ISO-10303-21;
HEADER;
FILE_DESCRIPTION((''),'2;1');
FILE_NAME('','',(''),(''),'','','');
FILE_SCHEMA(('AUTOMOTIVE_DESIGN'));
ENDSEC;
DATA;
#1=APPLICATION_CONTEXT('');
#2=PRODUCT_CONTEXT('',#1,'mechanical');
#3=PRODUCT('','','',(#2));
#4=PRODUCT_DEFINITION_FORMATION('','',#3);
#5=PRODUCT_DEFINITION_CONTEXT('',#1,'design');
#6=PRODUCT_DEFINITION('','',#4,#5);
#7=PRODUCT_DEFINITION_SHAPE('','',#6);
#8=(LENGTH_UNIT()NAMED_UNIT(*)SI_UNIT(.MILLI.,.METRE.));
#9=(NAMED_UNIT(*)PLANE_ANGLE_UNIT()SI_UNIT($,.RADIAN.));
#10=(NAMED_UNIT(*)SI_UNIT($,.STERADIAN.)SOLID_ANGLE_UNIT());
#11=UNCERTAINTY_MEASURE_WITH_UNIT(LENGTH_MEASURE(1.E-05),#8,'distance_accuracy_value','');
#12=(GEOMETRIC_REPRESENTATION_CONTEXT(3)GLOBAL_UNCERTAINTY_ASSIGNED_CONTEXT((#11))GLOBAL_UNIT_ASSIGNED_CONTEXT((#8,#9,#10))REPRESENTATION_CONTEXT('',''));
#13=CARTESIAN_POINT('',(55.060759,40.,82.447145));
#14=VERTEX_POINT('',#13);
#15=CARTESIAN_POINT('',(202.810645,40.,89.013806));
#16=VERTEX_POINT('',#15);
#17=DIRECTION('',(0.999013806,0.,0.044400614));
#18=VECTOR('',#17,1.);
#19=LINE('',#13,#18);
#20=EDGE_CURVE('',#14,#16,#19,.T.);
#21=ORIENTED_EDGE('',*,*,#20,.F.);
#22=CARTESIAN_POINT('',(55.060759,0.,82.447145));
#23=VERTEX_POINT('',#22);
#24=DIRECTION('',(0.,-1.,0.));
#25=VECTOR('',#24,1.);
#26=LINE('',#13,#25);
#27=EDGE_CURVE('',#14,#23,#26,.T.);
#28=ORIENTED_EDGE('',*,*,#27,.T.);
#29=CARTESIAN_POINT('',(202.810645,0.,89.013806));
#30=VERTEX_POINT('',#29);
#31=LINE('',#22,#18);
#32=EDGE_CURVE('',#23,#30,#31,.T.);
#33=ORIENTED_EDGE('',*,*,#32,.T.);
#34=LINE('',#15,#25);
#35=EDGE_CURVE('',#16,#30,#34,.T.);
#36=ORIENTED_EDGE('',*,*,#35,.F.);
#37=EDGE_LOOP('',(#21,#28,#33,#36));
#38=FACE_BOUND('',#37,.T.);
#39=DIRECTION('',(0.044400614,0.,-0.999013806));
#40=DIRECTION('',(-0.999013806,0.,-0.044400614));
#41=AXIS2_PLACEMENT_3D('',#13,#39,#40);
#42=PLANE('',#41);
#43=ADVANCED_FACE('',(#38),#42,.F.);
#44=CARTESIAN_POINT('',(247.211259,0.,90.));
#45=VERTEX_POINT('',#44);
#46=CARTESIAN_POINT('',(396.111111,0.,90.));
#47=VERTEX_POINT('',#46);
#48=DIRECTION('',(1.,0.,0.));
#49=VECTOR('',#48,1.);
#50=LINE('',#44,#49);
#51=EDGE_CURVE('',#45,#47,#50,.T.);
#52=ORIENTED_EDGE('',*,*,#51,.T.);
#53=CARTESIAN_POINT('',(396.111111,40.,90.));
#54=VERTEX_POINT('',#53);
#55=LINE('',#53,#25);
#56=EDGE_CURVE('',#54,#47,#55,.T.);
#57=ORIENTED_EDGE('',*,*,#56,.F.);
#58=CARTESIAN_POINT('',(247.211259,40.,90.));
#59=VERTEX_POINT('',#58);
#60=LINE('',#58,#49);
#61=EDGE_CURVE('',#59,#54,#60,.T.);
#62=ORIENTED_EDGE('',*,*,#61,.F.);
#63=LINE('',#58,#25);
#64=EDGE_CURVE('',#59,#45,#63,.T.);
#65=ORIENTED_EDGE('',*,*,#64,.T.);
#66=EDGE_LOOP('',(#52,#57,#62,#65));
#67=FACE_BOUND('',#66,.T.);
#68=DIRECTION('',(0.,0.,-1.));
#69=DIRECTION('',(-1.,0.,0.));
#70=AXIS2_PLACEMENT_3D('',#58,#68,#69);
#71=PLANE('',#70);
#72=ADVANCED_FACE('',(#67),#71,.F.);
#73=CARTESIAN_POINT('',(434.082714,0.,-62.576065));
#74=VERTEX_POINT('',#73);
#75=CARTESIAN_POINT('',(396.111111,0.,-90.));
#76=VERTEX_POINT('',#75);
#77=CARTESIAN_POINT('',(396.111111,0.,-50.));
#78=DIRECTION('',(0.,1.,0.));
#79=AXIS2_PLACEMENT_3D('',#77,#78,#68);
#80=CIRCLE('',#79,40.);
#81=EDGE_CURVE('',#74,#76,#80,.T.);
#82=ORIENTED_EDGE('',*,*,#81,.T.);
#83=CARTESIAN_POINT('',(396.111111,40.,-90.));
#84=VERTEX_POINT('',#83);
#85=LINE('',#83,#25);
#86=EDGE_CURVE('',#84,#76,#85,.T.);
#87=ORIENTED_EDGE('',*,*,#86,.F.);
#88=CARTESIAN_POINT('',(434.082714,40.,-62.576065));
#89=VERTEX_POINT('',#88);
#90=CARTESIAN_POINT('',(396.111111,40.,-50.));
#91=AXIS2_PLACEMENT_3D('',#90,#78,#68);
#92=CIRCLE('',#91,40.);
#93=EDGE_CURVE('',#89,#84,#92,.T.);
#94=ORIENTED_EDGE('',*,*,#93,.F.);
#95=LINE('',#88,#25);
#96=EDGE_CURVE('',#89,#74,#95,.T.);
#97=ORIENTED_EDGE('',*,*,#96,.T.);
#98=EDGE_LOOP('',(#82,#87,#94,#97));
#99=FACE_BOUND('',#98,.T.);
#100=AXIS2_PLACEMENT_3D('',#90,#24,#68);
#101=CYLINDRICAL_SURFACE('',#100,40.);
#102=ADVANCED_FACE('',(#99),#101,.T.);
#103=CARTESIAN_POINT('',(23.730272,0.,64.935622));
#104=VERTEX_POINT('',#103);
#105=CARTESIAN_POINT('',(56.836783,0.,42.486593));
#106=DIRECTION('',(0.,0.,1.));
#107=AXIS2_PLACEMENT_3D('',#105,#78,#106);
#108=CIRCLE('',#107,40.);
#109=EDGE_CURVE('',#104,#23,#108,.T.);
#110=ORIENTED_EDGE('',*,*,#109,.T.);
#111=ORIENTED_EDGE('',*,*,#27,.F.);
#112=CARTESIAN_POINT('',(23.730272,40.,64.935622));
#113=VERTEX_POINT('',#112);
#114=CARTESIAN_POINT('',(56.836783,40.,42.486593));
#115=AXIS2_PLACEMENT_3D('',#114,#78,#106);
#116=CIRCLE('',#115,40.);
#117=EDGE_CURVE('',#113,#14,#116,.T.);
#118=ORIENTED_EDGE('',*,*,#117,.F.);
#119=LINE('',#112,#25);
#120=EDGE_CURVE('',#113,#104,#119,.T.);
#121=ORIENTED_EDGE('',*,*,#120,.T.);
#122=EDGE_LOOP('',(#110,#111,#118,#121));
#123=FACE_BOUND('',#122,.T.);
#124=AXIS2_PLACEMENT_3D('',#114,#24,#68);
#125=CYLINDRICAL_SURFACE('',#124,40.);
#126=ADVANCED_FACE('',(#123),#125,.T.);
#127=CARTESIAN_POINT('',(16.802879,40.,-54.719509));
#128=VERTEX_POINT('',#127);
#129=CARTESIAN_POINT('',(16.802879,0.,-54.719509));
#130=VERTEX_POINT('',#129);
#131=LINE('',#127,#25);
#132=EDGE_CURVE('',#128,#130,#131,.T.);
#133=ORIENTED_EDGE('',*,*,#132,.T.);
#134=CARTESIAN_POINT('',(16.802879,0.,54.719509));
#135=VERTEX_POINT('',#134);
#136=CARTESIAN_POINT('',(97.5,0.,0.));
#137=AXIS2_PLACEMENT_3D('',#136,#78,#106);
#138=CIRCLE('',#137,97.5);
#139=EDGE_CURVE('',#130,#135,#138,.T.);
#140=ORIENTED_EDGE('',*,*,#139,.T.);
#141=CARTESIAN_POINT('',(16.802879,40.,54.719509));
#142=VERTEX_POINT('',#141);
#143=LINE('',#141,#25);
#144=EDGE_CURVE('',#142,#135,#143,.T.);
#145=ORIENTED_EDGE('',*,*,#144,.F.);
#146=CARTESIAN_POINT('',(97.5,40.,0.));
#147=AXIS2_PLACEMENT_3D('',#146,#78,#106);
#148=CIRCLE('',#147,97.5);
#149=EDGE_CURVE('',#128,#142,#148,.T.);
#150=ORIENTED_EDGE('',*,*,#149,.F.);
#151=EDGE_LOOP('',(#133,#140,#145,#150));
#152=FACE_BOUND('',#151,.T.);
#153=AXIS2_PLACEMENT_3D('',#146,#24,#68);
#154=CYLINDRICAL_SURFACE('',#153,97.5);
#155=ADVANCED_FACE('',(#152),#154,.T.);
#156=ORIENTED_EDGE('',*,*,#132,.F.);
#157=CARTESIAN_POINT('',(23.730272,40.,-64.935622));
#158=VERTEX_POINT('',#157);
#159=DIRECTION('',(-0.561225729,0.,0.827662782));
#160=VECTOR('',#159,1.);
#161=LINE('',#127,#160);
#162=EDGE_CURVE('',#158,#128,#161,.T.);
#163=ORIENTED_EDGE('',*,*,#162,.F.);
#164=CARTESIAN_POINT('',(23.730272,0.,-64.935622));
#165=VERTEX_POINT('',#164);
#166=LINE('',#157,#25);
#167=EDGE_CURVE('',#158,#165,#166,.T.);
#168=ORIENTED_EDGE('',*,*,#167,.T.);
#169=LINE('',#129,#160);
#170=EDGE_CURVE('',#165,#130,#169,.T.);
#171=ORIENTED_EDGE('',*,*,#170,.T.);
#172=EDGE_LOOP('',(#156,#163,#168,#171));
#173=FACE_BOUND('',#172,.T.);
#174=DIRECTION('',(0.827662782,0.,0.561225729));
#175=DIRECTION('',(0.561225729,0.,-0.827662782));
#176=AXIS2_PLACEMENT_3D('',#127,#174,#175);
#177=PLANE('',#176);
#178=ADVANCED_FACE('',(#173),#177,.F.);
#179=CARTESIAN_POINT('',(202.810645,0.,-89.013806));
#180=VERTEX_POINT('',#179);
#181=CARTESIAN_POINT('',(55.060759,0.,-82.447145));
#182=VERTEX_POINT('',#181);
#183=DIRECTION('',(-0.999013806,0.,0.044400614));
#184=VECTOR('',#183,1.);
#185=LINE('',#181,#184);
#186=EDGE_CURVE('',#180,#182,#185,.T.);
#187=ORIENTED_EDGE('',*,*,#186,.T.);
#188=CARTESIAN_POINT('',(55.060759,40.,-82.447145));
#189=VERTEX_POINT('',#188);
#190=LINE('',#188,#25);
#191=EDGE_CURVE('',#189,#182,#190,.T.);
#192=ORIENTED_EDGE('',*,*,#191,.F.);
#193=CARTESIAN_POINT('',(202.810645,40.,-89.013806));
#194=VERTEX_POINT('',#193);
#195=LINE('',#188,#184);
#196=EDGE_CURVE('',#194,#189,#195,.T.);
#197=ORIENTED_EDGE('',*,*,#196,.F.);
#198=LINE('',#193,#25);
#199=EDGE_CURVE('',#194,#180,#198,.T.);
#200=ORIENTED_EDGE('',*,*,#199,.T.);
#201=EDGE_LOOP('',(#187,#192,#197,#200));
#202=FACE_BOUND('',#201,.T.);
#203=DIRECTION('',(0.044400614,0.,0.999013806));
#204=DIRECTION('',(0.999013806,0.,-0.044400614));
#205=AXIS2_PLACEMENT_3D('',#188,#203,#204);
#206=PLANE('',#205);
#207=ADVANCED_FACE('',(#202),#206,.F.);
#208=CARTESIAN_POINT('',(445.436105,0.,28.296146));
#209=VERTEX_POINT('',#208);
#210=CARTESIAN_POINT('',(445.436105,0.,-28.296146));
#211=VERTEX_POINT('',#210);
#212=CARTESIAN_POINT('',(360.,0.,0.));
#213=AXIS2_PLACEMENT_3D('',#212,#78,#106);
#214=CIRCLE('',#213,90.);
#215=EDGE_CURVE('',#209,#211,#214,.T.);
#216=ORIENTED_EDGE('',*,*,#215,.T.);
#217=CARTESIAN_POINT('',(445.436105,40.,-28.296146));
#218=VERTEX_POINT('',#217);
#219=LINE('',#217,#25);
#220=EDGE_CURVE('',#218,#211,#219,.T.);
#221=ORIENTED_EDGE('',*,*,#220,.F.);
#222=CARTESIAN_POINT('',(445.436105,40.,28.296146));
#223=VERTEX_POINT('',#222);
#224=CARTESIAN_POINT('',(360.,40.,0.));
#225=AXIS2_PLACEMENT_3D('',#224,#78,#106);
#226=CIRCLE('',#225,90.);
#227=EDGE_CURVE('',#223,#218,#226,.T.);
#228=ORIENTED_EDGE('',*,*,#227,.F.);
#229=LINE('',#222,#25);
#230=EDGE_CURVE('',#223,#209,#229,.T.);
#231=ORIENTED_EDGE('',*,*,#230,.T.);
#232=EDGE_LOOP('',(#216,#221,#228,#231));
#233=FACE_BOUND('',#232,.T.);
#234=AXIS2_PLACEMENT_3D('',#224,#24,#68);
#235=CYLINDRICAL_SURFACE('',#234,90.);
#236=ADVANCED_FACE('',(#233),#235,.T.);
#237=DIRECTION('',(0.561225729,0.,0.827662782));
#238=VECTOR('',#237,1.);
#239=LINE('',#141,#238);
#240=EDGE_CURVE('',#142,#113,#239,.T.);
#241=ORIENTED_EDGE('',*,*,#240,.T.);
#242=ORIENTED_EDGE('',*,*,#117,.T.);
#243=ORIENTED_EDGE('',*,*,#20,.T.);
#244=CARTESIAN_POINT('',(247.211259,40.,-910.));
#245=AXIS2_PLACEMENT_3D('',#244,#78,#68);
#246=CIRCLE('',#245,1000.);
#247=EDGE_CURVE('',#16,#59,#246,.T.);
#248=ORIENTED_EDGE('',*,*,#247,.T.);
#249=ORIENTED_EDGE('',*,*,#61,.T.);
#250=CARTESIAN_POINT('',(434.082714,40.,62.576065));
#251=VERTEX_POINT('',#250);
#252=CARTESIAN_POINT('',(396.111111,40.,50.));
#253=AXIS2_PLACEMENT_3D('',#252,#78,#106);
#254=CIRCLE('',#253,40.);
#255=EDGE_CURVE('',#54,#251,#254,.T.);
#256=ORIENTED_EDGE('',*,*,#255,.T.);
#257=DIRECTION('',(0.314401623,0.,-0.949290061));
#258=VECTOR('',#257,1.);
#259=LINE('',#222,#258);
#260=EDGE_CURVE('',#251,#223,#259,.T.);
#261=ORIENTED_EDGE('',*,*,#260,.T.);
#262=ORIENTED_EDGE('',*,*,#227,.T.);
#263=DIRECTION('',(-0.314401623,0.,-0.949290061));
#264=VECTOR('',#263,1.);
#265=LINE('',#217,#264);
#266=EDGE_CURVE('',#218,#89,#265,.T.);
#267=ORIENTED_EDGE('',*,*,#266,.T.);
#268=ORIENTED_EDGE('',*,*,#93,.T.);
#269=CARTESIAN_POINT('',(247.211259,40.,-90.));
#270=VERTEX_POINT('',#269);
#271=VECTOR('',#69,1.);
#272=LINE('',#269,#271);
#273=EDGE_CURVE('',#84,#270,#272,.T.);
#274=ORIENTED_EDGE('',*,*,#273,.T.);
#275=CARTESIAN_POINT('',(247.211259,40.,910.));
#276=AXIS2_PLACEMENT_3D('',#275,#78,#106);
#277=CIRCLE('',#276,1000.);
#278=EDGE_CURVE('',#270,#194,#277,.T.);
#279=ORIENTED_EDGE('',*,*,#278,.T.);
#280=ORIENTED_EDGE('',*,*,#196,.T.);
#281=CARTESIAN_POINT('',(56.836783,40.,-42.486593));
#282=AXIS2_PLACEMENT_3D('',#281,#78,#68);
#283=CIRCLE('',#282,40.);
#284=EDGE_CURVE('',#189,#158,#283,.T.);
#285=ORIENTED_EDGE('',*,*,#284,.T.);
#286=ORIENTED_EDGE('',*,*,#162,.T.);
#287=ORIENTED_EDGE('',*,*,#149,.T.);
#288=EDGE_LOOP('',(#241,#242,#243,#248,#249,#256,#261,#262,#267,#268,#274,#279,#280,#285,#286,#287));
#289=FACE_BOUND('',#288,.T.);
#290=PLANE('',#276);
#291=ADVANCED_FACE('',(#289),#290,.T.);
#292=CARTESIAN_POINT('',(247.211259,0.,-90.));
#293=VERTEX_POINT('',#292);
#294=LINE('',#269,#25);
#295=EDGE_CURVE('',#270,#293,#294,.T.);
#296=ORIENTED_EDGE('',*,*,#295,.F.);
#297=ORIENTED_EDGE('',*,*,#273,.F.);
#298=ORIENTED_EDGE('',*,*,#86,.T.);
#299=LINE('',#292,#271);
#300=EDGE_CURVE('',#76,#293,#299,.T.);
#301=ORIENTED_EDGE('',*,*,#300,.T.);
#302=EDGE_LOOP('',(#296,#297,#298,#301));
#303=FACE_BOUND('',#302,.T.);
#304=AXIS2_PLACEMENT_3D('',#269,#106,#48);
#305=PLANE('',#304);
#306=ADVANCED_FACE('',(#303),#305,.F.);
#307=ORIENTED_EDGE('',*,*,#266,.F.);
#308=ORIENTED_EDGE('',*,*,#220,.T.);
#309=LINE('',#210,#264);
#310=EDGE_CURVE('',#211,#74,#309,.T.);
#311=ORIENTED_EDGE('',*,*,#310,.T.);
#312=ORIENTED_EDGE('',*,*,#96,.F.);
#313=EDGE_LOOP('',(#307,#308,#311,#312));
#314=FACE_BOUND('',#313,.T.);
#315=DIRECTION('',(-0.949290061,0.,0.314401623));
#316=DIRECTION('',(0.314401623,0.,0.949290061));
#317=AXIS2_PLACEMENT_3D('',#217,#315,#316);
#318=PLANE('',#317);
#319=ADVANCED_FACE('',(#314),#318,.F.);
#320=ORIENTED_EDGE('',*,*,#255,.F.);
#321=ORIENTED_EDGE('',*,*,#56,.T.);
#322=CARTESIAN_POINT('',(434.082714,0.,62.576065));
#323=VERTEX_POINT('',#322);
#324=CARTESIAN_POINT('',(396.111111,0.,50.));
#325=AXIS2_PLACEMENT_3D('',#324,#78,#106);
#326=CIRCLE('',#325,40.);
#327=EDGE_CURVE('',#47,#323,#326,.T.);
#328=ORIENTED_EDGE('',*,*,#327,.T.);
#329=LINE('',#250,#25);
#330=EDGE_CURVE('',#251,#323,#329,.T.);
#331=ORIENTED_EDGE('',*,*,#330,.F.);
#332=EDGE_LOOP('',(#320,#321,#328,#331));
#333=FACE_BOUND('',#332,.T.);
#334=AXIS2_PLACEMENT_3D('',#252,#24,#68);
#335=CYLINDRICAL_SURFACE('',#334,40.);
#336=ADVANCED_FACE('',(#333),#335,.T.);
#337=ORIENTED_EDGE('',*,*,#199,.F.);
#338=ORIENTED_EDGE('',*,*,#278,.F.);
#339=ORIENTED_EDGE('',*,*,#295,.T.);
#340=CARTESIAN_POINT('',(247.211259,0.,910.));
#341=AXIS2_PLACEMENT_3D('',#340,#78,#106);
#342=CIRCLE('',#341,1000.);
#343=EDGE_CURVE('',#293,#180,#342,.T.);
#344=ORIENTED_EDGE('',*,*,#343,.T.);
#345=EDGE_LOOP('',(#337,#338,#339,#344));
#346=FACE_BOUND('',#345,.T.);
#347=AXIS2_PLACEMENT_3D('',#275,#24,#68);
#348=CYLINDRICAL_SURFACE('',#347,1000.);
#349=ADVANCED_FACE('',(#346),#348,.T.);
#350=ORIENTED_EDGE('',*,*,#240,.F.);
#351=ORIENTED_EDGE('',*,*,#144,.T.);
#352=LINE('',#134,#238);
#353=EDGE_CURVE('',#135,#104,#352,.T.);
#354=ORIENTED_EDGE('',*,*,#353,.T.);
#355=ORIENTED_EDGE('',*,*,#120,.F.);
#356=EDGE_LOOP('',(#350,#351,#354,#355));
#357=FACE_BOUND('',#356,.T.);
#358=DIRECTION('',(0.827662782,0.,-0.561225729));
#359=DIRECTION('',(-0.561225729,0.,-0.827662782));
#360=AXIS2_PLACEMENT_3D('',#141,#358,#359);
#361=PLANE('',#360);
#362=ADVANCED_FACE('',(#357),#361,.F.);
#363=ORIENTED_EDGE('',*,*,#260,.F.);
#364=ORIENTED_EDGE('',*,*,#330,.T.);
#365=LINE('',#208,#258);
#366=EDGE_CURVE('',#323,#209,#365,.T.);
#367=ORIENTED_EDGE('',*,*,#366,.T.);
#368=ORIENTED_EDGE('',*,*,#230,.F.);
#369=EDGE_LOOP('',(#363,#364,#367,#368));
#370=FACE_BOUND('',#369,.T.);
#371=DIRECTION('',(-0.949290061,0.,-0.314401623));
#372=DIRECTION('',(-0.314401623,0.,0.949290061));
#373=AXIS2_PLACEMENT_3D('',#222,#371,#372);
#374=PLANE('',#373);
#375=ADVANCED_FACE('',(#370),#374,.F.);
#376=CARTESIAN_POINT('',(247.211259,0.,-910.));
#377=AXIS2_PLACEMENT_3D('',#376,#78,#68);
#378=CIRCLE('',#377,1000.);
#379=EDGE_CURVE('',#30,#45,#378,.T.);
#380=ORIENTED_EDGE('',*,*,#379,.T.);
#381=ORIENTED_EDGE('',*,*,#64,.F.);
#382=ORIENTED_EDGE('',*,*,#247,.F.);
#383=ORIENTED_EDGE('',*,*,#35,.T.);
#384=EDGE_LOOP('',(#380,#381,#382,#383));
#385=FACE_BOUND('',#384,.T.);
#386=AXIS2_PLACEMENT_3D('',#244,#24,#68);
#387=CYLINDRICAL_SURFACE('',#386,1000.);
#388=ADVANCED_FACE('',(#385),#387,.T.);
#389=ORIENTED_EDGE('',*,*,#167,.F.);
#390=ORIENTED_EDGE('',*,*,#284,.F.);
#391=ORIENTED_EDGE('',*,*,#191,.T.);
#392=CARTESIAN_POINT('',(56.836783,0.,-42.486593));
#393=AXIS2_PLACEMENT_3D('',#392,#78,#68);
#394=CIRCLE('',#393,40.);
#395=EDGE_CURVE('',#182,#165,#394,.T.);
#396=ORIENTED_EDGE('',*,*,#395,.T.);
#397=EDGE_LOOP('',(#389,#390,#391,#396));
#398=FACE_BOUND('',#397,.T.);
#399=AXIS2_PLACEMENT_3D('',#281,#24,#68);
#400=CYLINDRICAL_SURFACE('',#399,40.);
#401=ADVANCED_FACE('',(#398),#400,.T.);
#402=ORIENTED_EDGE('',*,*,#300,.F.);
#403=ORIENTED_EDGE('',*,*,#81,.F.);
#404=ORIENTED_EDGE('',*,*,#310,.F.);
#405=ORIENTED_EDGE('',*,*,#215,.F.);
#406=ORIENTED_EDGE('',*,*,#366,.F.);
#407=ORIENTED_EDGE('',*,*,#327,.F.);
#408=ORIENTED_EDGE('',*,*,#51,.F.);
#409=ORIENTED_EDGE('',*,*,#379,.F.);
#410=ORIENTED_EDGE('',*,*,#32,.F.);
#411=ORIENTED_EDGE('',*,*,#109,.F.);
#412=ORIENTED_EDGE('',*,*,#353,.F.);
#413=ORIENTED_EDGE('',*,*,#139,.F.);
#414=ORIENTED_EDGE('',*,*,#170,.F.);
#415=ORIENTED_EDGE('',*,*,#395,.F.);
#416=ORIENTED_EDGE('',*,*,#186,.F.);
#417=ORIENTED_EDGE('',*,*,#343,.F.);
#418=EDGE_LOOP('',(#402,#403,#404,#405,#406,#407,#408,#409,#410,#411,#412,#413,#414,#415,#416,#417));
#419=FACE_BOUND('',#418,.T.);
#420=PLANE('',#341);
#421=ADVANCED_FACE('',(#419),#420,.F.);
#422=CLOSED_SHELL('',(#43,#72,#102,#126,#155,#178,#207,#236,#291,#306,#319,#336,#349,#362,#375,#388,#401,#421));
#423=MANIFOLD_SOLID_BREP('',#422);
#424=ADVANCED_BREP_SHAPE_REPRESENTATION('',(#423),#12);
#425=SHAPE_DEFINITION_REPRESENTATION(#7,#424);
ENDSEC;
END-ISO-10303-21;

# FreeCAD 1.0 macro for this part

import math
import FreeCAD as App
import Part
import Sketcher
from FreeCAD import Vector

doc = App.newDocument("Part")
body = doc.addObject("PartDesign::Body", "Body")

# Sketch on XZ plane
sketch1 = body.newObject("Sketcher::SketchObject", "Sketch")
sketch1.AttachmentSupport = (doc.getObject("XZ_Plane"), [""])
sketch1.MapMode = "FlatFace"
sketch1.addGeometry([
    Part.LineSegment(Vector(24, -65, 0), Vector(17, -55, 0)),  # 0
    Part.ArcOfCircle(Part.Circle(Vector(98, 0, 0), Vector(0, 0, 1), 98), math.radians(146), math.radians(214)),  # 1
    Part.LineSegment(Vector(17, 55, 0), Vector(24, 65, 0)),  # 2
    Part.ArcOfCircle(Part.Circle(Vector(57, 42, 0), Vector(0, 0, 1), 40), math.radians(93), math.radians(146)),  # 3
    Part.LineSegment(Vector(55, 82, 0), Vector(203, 89, 0)),  # 4
    Part.ArcOfCircle(Part.Circle(Vector(247, -910, 0), Vector(0, 0, 1), 1000), math.radians(90), math.radians(92.54)),  # 5
    Part.LineSegment(Vector(247, 90, 0), Vector(396, 90, 0)),  # 6
    Part.ArcOfCircle(Part.Circle(Vector(396, 50, 0), Vector(0, 0, 1), 40), math.radians(18), math.radians(90)),  # 7
    Part.LineSegment(Vector(434, 63, 0), Vector(445, 28, 0)),  # 8
    Part.ArcOfCircle(Part.Circle(Vector(360, 0, 0), Vector(0, 0, 1), 90), math.radians(-18), math.radians(18)),  # 9
    Part.LineSegment(Vector(445, -28, 0), Vector(434, -63, 0)),  # 10
    Part.ArcOfCircle(Part.Circle(Vector(396, -50, 0), Vector(0, 0, 1), 40), math.radians(-90), math.radians(-18)),  # 11
    Part.LineSegment(Vector(396, -90, 0), Vector(247, -90, 0)),  # 12
    Part.ArcOfCircle(Part.Circle(Vector(247, 910, 0), Vector(0, 0, 1), 1000), math.radians(-92.54), math.radians(-90)),  # 13
    Part.LineSegment(Vector(203, -89, 0), Vector(55, -82, 0)),  # 14
    Part.ArcOfCircle(Part.Circle(Vector(57, -42, 0), Vector(0, 0, 1), 40), math.radians(-146), math.radians(-93)),  # 15
], False)
sketch1.addConstraint([
    Sketcher.Constraint("Tangent", 0, 2, 1, 2),
    Sketcher.Constraint("Tangent", 1, 1, 2, 1),
    Sketcher.Constraint("Tangent", 2, 2, 3, 2),
    Sketcher.Constraint("Tangent", 3, 1, 4, 1),
    Sketcher.Constraint("Tangent", 4, 2, 5, 2),
    Sketcher.Constraint("Tangent", 5, 1, 6, 1),
    Sketcher.Constraint("Tangent", 6, 2, 7, 2),
    Sketcher.Constraint("Tangent", 7, 1, 8, 1),
    Sketcher.Constraint("Tangent", 8, 2, 9, 2),
    Sketcher.Constraint("Tangent", 9, 1, 10, 1),
    Sketcher.Constraint("Tangent", 10, 2, 11, 2),
    Sketcher.Constraint("Tangent", 11, 1, 12, 1),
    Sketcher.Constraint("Tangent", 12, 2, 13, 2),
    Sketcher.Constraint("Tangent", 13, 1, 14, 1),
    Sketcher.Constraint("Tangent", 14, 2, 15, 2),
    Sketcher.Constraint("Tangent", 15, 1, 0, 1),
    Sketcher.Constraint("Horizontal", 6),
    Sketcher.Constraint("Horizontal", 12),
    Sketcher.Constraint("Equal", 3, 7),
    Sketcher.Constraint("Equal", 7, 11),
    Sketcher.Constraint("Equal", 5, 13),
    Sketcher.Constraint("Equal", 11, 15),
    Sketcher.Constraint("Symmetric", 7, 3, 11, 3, -1),
    Sketcher.Constraint("Symmetric", 3, 3, 15, 3, -1),
    Sketcher.Constraint("PointOnObject", 1, 3, -1),
    Sketcher.Constraint("PointOnObject", 9, 3, -1),
    Sketcher.Constraint("Vertical", 5, 3, 13, 3),
    Sketcher.Constraint("Radius", 3, 40.0),
    Sketcher.Constraint("Radius", 5, 1000.0),
    Sketcher.Constraint("Radius", 9, 90.0),
    Sketcher.Constraint("Radius", 1, 97.5),
    Sketcher.Constraint("DistanceY", 5, 3, -1, 1, 910.0),
    Sketcher.Constraint("DistanceX", -1, 1, 9, 3, 360.0),
    Sketcher.Constraint("DistanceX", -1, 1, 1, 3, 97.5),
    Sketcher.Constraint("DistanceY", 0, 2, 3, 3, 97.206101),
    Sketcher.Constraint("Distance", 4, 147.895741),
    Sketcher.Constraint("Distance", 8, 36.111111),
    Sketcher.Constraint("DistanceX", 6, 1, 6, 2, 148.899852),
])
pad1 = body.newObject("PartDesign::Pad", "Pad")
pad1.Profile = sketch1
pad1.Length = 40
pad1.Reversed = True

doc.recompute()
